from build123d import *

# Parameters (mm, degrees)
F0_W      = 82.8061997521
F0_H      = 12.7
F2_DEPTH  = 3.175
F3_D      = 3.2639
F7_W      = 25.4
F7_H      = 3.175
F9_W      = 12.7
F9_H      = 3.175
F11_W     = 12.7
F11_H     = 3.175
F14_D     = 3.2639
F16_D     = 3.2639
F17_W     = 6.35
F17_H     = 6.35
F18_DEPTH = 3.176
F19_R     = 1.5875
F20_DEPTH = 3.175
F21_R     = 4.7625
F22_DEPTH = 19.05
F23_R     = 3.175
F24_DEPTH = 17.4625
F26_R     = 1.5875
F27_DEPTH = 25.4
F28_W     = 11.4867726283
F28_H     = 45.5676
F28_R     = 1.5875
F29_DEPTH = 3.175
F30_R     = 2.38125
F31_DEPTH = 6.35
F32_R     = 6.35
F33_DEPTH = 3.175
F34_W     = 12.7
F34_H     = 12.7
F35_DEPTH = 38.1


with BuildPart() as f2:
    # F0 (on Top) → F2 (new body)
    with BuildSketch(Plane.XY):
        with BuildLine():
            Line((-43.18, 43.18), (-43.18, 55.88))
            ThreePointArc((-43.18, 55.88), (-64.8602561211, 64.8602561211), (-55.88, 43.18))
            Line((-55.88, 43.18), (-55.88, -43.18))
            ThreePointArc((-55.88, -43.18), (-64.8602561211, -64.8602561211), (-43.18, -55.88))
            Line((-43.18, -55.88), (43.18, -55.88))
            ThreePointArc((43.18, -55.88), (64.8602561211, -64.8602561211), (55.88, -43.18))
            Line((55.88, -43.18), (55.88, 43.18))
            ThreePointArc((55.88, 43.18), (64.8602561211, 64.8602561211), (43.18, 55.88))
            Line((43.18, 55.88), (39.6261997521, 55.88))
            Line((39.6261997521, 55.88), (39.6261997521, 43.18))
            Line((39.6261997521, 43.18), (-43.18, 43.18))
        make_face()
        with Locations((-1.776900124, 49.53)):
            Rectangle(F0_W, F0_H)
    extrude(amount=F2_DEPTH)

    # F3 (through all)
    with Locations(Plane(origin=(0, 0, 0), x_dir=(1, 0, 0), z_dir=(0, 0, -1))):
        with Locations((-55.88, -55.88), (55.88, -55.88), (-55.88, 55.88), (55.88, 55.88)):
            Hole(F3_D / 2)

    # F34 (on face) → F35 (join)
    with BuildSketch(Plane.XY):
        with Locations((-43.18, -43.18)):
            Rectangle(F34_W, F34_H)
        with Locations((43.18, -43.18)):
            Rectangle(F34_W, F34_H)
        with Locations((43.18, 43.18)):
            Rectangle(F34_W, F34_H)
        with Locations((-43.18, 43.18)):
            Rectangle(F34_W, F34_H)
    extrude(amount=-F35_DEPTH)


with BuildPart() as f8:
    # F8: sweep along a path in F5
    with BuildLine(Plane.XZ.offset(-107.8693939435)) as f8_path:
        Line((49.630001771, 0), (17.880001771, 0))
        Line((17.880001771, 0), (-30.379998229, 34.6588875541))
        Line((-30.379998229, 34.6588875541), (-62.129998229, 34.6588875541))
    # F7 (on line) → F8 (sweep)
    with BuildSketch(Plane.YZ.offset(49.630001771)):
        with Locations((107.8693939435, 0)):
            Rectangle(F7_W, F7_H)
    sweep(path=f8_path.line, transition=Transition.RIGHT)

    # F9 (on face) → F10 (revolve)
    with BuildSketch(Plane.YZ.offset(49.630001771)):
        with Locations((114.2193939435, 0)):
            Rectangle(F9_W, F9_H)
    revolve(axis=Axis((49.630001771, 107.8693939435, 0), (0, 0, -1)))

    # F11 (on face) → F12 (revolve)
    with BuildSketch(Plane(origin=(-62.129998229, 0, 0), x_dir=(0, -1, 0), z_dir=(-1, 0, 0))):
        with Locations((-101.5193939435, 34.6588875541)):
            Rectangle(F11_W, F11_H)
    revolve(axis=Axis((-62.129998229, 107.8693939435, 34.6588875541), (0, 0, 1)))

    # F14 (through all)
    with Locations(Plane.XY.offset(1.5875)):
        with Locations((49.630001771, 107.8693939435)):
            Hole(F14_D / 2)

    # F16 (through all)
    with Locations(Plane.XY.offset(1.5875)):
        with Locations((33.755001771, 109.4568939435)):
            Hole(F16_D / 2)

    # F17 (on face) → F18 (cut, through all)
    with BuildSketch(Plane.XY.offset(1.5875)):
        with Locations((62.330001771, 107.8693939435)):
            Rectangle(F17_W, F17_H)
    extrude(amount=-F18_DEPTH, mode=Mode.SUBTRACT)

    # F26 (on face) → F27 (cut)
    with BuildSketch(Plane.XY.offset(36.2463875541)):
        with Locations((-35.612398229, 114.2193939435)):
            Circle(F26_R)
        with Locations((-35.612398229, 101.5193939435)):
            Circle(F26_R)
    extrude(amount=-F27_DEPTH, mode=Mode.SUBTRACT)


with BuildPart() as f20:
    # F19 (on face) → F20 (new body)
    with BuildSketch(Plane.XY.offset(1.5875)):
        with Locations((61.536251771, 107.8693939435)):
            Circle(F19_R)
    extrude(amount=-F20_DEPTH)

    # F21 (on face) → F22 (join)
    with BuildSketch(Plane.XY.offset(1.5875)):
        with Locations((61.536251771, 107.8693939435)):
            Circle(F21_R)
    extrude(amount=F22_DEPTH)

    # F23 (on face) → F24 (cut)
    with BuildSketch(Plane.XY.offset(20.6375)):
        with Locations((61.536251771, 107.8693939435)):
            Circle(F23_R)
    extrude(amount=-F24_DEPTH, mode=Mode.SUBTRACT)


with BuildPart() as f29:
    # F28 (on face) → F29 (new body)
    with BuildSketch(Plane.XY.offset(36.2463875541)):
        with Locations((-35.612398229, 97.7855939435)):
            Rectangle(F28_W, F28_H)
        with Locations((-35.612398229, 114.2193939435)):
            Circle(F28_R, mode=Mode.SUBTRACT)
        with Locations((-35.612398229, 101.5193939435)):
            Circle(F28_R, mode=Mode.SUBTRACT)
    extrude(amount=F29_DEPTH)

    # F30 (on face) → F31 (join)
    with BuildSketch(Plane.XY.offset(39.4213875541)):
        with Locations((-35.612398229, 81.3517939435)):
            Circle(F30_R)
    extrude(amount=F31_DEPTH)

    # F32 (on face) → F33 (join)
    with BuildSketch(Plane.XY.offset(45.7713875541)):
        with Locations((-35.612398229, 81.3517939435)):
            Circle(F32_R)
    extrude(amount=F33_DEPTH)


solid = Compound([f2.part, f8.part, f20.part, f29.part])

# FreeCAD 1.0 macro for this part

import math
import FreeCAD as App
import Part
import Sketcher
Q = App.Units.Quantity


def add_polygon(sketch, points):
    """Adds a closed chain of lines whose ends are joined by coincident constraints."""
    first, n = sketch.GeometryCount, len(points)
    for a, b in zip(points, points[1:] + points[:1]):
        sketch.addGeometry(Part.LineSegment(App.Vector(*a, 0), App.Vector(*b, 0)), False)
    for i in range(n):
        sketch.addConstraint(Sketcher.Constraint("Coincident", first + i, 2, first + (i + 1) % n, 1))

doc = App.newDocument("Part")
body = doc.addObject("PartDesign::Body", "Body")

sketch1 = body.newObject("Sketcher::SketchObject", "Sketch")
sketch1.AttachmentSupport = (doc.getObject("XY_Plane"), [""])
sketch1.MapMode = "FlatFace"
sketch1.addGeometry([
    Part.ArcOfCircle(Part.Circle(App.Vector(-56, 56, 0), App.Vector(0, 0, 1), 13), math.radians(0), math.radians(270)),
    Part.LineSegment(App.Vector(-56, 43, 0), App.Vector(-56, -43, 0)),
    Part.ArcOfCircle(Part.Circle(App.Vector(-56, -56, 0), App.Vector(0, 0, 1), 13), math.radians(90), math.radians(360)),
    Part.LineSegment(App.Vector(-43, -56, 0), App.Vector(43, -56, 0)),
    Part.ArcOfCircle(Part.Circle(App.Vector(56, -56, 0), App.Vector(0, 0, 1), 13), math.radians(180), math.radians(450)),
    Part.LineSegment(App.Vector(56, -43, 0), App.Vector(56, 43, 0)),
    Part.ArcOfCircle(Part.Circle(App.Vector(56, 56, 0), App.Vector(0, 0, 1), 13), math.radians(-90), math.radians(180)),
    Part.LineSegment(App.Vector(43, 56, 0), App.Vector(-43, 56, 0)),
], False)
sketch1.addConstraint([
    Sketcher.Constraint("Coincident", 0, 2, 1, 1),
    Sketcher.Constraint("Coincident", 1, 2, 2, 1),
    Sketcher.Constraint("Coincident", 2, 2, 3, 1),
    Sketcher.Constraint("Coincident", 3, 2, 4, 1),
    Sketcher.Constraint("Coincident", 4, 2, 5, 1),
    Sketcher.Constraint("Coincident", 5, 2, 6, 1),
    Sketcher.Constraint("Coincident", 6, 2, 7, 1),
    Sketcher.Constraint("Coincident", 7, 2, 0, 1),
    Sketcher.Constraint("Vertical", 1),
    Sketcher.Constraint("Horizontal", 3),
    Sketcher.Constraint("Vertical", 5),
    Sketcher.Constraint("Horizontal", 7),
    Sketcher.Constraint("Equal", 0, 2),
    Sketcher.Constraint("Equal", 2, 4),
    Sketcher.Constraint("Equal", 4, 6),
    Sketcher.Constraint("Symmetric", 0, 3, 4, 3, -1, 1),
    Sketcher.Constraint("Symmetric", 2, 3, 6, 3, -1, 1),
    Sketcher.Constraint("Symmetric", 2, 3, 4, 3, -2),
    Sketcher.Constraint("Horizontal", 4, 3, 2, 2),
    Sketcher.Constraint("Horizontal", 0, 3, 6, 2),
    Sketcher.Constraint("Vertical", 2, 3, 0, 2),
    Sketcher.Constraint("Vertical", 6, 3, 4, 2),
    Sketcher.Constraint("Equal", 7, 1),
    Sketcher.Constraint("Radius", 0, Q("0.5 in")),
    Sketcher.Constraint("DistanceX", 3, 1, 3, 2, Q("3.4 in")),
])
pad1 = body.newObject("PartDesign::Pad", "Pad")
pad1.Profile = sketch1
pad1.Length = Q("0.125 in")

sketch2 = body.newObject("Sketcher::SketchObject", "Sketch001")
sketch2.AttachmentSupport = (doc.getObject("XY_Plane"), [""])
sketch2.MapMode = "FlatFace"
sketch2.addGeometry([
    Part.Circle(App.Vector(-55.9, 55.9, 0), App.Vector(0, 0, 1), 1.6),
    Part.Circle(App.Vector(55.9, 55.9, 0), App.Vector(0, 0, 1), 1.6),
    Part.Circle(App.Vector(-55.9, -55.9, 0), App.Vector(0, 0, 1), 1.6),
    Part.Circle(App.Vector(55.9, -55.9, 0), App.Vector(0, 0, 1), 1.6),
], False)
sketch2.addConstraint([
    Sketcher.Constraint("Equal", 0, 1),
    Sketcher.Constraint("Equal", 1, 2),
    Sketcher.Constraint("Equal", 2, 3),
    Sketcher.Constraint("Symmetric", 1, 3, 2, 3, -1, 1),
    Sketcher.Constraint("Symmetric", 0, 3, 3, 3, -1, 1),
    Sketcher.Constraint("Symmetric", 0, 3, 1, 3, -2),
    Sketcher.Constraint("Diameter", 0, Q("0.1285 in")),
    Sketcher.Constraint("DistanceX", 0, 3, -1, 1, Q("2.2 in")),
    Sketcher.Constraint("DistanceY", -1, 1, 0, 3, Q("2.2 in")),
])
doc.recompute()
hole = body.newObject("PartDesign::Hole", "Hole")
hole.Profile = sketch2
hole.ThreadType = "None"
hole.Diameter = Q("0.1285 in")
hole.DepthType = "ThroughAll"
hole.Reversed = True

sketch3 = body.newObject("Sketcher::SketchObject", "Sketch002")
sketch3.AttachmentSupport = (doc.getObject("XY_Plane"), [""])
sketch3.MapMode = "FlatFace"
add_polygon(sketch3, [(-50, -37), (-50, -50), (-37, -50), (-37, -37)])
add_polygon(sketch3, [(37, -37), (37, -50), (50, -50), (50, -37)])
add_polygon(sketch3, [(37, 50), (37, 37), (50, 37), (50, 50)])
add_polygon(sketch3, [(-50, 50), (-50, 37), (-37, 37), (-37, 50)])
sketch3.addConstraint([
    Sketcher.Constraint("Vertical", 0),
    Sketcher.Constraint("Horizontal", 1),
    Sketcher.Constraint("Vertical", 2),
    Sketcher.Constraint("Horizontal", 3),
    Sketcher.Constraint("Vertical", 4),
    Sketcher.Constraint("Horizontal", 5),
    Sketcher.Constraint("Vertical", 6),
    Sketcher.Constraint("Horizontal", 7),
    Sketcher.Constraint("Vertical", 8),
    Sketcher.Constraint("Horizontal", 9),
    Sketcher.Constraint("Vertical", 10),
    Sketcher.Constraint("Horizontal", 11),
    Sketcher.Constraint("Vertical", 12),
    Sketcher.Constraint("Horizontal", 13),
    Sketcher.Constraint("Vertical", 14),
    Sketcher.Constraint("Horizontal", 15),
    Sketcher.Constraint("Symmetric", 2, 2, 8, 2, -1, 1),
    Sketcher.Constraint("Symmetric", 0, 2, 10, 2, -1, 1),
    Sketcher.Constraint("Symmetric", 6, 2, 12, 2, -1, 1),
    Sketcher.Constraint("Symmetric", 4, 2, 14, 2, -1, 1),
    Sketcher.Constraint("Symmetric", 1, 2, 4, 2, -2),
    Sketcher.Constraint("Symmetric", 3, 2, 6, 2, -2),
    Sketcher.Constraint("Equal", 15, 0),
    Sketcher.Constraint("DistanceX", 1, 1, 1, 2, Q("0.5 in")),
    Sketcher.Constraint("DistanceX", 1, 2, 4, 2, Q("2.9 in")),
    Sketcher.Constraint("DistanceY", 7, 2, 8, 2, Q("2.9 in")),
])
pad2 = body.newObject("PartDesign::Pad", "Pad001")
pad2.Profile = sketch3
pad2.Length = Q("1.5 in")
pad2.Reversed = True
body2 = doc.addObject("PartDesign::Body", "Body001")

sketch4 = body2.newObject("Sketcher::SketchObject", "Sketch003")
sketch4.AttachmentSupport = (doc.getObject("YZ_Plane001"), [""])
sketch4.MapMode = "FlatFace"
sketch4.AttachmentOffset = App.Placement(App.Vector(0, 0, 49.630002), App.Rotation())
add_polygon(sketch4, [(95.2, 1.6), (95.2, -1.6), (120.6, -1.6), (120.6, 1.6)])
sketch4.addConstraint([
    Sketcher.Constraint("Vertical", 0),
    Sketcher.Constraint("Horizontal", 1),
    Sketcher.Constraint("Vertical", 2),
    Sketcher.Constraint("Horizontal", 3),
    Sketcher.Constraint("DistanceX", 1, 1, 1, 2, Q("1 in")),
    Sketcher.Constraint("DistanceY", 0, 2, 0, 1, Q("0.125 in")),
    Sketcher.Constraint("DistanceY", 0, 2, -1, 1, Q("0.0625 in")),
    Sketcher.Constraint("DistanceX", -1, 1, 0, 2, 95.169394),
])

sketch5 = body2.newObject("Sketcher::SketchObject", "Sketch004")
sketch5.AttachmentSupport = (doc.getObject("XZ_Plane001"), [""])
sketch5.MapMode = "FlatFace"
sketch5.AttachmentOffset = App.Placement(App.Vector(0, 0, -107.869394), App.Rotation())
sketch5.addGeometry([
    Part.LineSegment(App.Vector(50, 0, 0), App.Vector(18, 0, 0)),
    Part.LineSegment(App.Vector(18, 0, 0), App.Vector(-30, 35, 0)),
    Part.LineSegment(App.Vector(-30, 35, 0), App.Vector(-62, 35, 0)),
], False)
sketch5.addConstraint([
    Sketcher.Constraint("Coincident", 0, 2, 1, 1),
    Sketcher.Constraint("Coincident", 1, 2, 2, 1),
    Sketcher.Constraint("Horizontal", 0),
    Sketcher.Constraint("Horizontal", 2),
    Sketcher.Constraint("PointOnObject", 0, 1, -1),
    Sketcher.Constraint("Equal", 0, 2),
    Sketcher.Constraint("DistanceX", 0, 2, 0, 1, Q("1.25 in")),
    Sketcher.Constraint("DistanceX", 1, 2, 0, 2, Q("1.9 in")),
    Sketcher.Constraint("DistanceX", -1, 1, 0, 1, 49.630002),
    Sketcher.Constraint("Distance", 1, 59.416042),
])
doc.recompute()

additivepipe = body2.newObject("PartDesign::AdditivePipe", "AdditivePipe")
additivepipe.Profile = sketch4
additivepipe.Spine = (sketch5, ["Edge1", "Edge2", "Edge3"])
additivepipe.Transition = "Right corner"

sketch6 = body2.newObject("Sketcher::SketchObject", "Sketch005")
sketch6.AttachmentSupport = (doc.getObject("YZ_Plane001"), [""])
sketch6.MapMode = "FlatFace"
sketch6.AttachmentOffset = App.Placement(App.Vector(0, 0, 49.630002), App.Rotation())
add_polygon(sketch6, [(107.9, 1.6), (107.9, -1.6), (120.6, -1.6), (120.6, 1.6)])
sketch6.addGeometry(Part.LineSegment(App.Vector(107.9, 1.6, 0), App.Vector(107.9, -1.6, 0)), True)
sketch6.addConstraint([
    Sketcher.Constraint("Vertical", 0),
    Sketcher.Constraint("Horizontal", 1),
    Sketcher.Constraint("Vertical", 2),
    Sketcher.Constraint("Horizontal", 3),
    Sketcher.Constraint("Vertical", 4),
    Sketcher.Constraint("Coincident", 4, 1, 3, 2),
    Sketcher.Constraint("Horizontal", 1, 2, 4, 2),
    Sketcher.Constraint("DistanceX", 1, 1, 1, 2, Q("0.5 in")),
    Sketcher.Constraint("DistanceY", 0, 2, 0, 1, Q("0.125 in")),
    Sketcher.Constraint("DistanceY", 0, 2, -1, 1, Q("0.0625 in")),
    Sketcher.Constraint("DistanceX", -1, 1, 0, 2, 107.869394),
])
revolution = body2.newObject("PartDesign::Revolution", "Revolution")
revolution.Profile = sketch6
revolution.ReferenceAxis = (sketch6, ["Axis0"])
revolution.Angle = 360

sketch7 = body2.newObject("Sketcher::SketchObject", "Sketch006")
sketch7.AttachmentSupport = (doc.getObject("YZ_Plane001"), [""])
sketch7.MapMode = "FlatFace"
sketch7.AttachmentOffset = App.Placement(App.Vector(0, 0, -62.129998), App.Rotation())
add_polygon(sketch7, [(107.9, 36.2), (107.9, 33.1), (95.2, 33.1), (95.2, 36.2)])
sketch7.addGeometry(Part.LineSegment(App.Vector(107.9, 33.1, 0), App.Vector(107.9, 36.2, 0)), True)
sketch7.addConstraint([
    Sketcher.Constraint("Vertical", 0),
    Sketcher.Constraint("Horizontal", 1),
    Sketcher.Constraint("Vertical", 2),
    Sketcher.Constraint("Horizontal", 3),
    Sketcher.Constraint("Vertical", 4),
    Sketcher.Constraint("Coincident", 4, 1, 0, 2),
    Sketcher.Constraint("Horizontal", 2, 2, 4, 2),
    Sketcher.Constraint("DistanceX", 1, 2, 1, 1, Q("0.5 in")),
    Sketcher.Constraint("DistanceY", 0, 2, 0, 1, Q("0.125 in")),
    Sketcher.Constraint("DistanceX", -1, 1, 0, 2, 107.869394),
    Sketcher.Constraint("DistanceY", -1, 1, 0, 2, 33.071388),
])
revolution2 = body2.newObject("PartDesign::Revolution", "Revolution001")
revolution2.Profile = sketch7
revolution2.ReferenceAxis = (sketch7, ["Axis0"])
revolution2.Angle = 360

sketch8 = body2.newObject("Sketcher::SketchObject", "Sketch007")
sketch8.AttachmentSupport = (doc.getObject("XY_Plane001"), [""])
sketch8.MapMode = "FlatFace"
sketch8.AttachmentOffset = App.Placement(App.Vector(0, 0, 0.0625 * 25.4), App.Rotation())
sketch8.addGeometry(Part.Circle(App.Vector(49.6, 107.9, 0), App.Vector(0, 0, 1), 1.6), False)
sketch8.addConstraint([
    Sketcher.Constraint("Diameter", 0, Q("0.1285 in")),
    Sketcher.Constraint("DistanceX", -1, 1, 0, 3, 49.630002),
    Sketcher.Constraint("DistanceY", -1, 1, 0, 3, 107.869394),
])
doc.recompute()
hole2 = body2.newObject("PartDesign::Hole", "Hole001")
hole2.Profile = sketch8
hole2.ThreadType = "None"
hole2.Diameter = Q("0.1285 in")
hole2.DepthType = "ThroughAll"

sketch9 = body2.newObject("Sketcher::SketchObject", "Sketch008")
sketch9.AttachmentSupport = (doc.getObject("XY_Plane001"), [""])
sketch9.MapMode = "FlatFace"
sketch9.AttachmentOffset = App.Placement(App.Vector(0, 0, 0.0625 * 25.4), App.Rotation())
sketch9.addGeometry(Part.Circle(App.Vector(33.8, 109.5, 0), App.Vector(0, 0, 1), 1.6), False)
sketch9.addConstraint([
    Sketcher.Constraint("Diameter", 0, Q("0.1285 in")),
    Sketcher.Constraint("DistanceX", -1, 1, 0, 3, 33.755002),
    Sketcher.Constraint("DistanceY", -1, 1, 0, 3, 109.456894),
])
doc.recompute()
hole3 = body2.newObject("PartDesign::Hole", "Hole002")
hole3.Profile = sketch9
hole3.ThreadType = "None"
hole3.Diameter = Q("0.1285 in")
hole3.DepthType = "ThroughAll"

sketch10 = body2.newObject("Sketcher::SketchObject", "Sketch009")
sketch10.AttachmentSupport = (doc.getObject("XY_Plane001"), [""])
sketch10.MapMode = "FlatFace"
sketch10.AttachmentOffset = App.Placement(App.Vector(0, 0, 0.0625 * 25.4), App.Rotation())
add_polygon(sketch10, [(59, 111), (59, 105), (66, 105), (66, 111)])
sketch10.addConstraint([
    Sketcher.Constraint("Vertical", 0),
    Sketcher.Constraint("Horizontal", 1),
    Sketcher.Constraint("Vertical", 2),
    Sketcher.Constraint("Horizontal", 3),
    Sketcher.Constraint("Equal", 3, 0),
    Sketcher.Constraint("DistanceX", 1, 1, 1, 2, Q("0.25 in")),
    Sketcher.Constraint("DistanceX", -1, 1, 0, 2, 59.155002),
    Sketcher.Constraint("DistanceY", -1, 1, 0, 2, 104.694394),
])
pocket1 = body2.newObject("PartDesign::Pocket", "Pocket")
pocket1.Profile = sketch10
pocket1.Type = "ThroughAll"

sketch11 = body2.newObject("Sketcher::SketchObject", "Sketch010")
sketch11.AttachmentSupport = (doc.getObject("XY_Plane001"), [""])
sketch11.MapMode = "FlatFace"
sketch11.AttachmentOffset = App.Placement(App.Vector(0, 0, 36.246388), App.Rotation())
sketch11.addGeometry([
    Part.Circle(App.Vector(-35.6, 114.2, 0), App.Vector(0, 0, 1), 1.6),
    Part.Circle(App.Vector(-35.6, 101.5, 0), App.Vector(0, 0, 1), 1.6),
], False)
sketch11.addConstraint([
    Sketcher.Constraint("Equal", 0, 1),
    Sketcher.Constraint("Vertical", 0, 3, 1, 3),
    Sketcher.Constraint("Diameter", 0, Q("0.125 in")),
    Sketcher.Constraint("DistanceY", 1, 3, 0, 3, Q("0.5 in")),
    Sketcher.Constraint("DistanceX", 0, 3, -1, 1, 35.612398),
    Sketcher.Constraint("DistanceY", -1, 1, 0, 3, 114.219394),
])
pocket2 = body2.newObject("PartDesign::Pocket", "Pocket001")
pocket2.Profile = sketch11
pocket2.Length = Q("1 in")
body3 = doc.addObject("PartDesign::Body", "Body002")

sketch12 = body3.newObject("Sketcher::SketchObject", "Sketch011")
sketch12.AttachmentSupport = (doc.getObject("XY_Plane002"), [""])
sketch12.MapMode = "FlatFace"
sketch12.AttachmentOffset = App.Placement(App.Vector(0, 0, 0.0625 * 25.4), App.Rotation())
sketch12.addGeometry(Part.Circle(App.Vector(61.5, 107.9, 0), App.Vector(0, 0, 1), 1.6), False)
sketch12.addConstraint([
    Sketcher.Constraint("Diameter", 0, Q("0.125 in")),
    Sketcher.Constraint("DistanceX", -1, 1, 0, 3, 61.536252),
    Sketcher.Constraint("DistanceY", -1, 1, 0, 3, 107.869394),
])
pad3 = body3.newObject("PartDesign::Pad", "Pad002")
pad3.Profile = sketch12
pad3.Length = Q("0.125 in")
pad3.Reversed = True

sketch13 = body3.newObject("Sketcher::SketchObject", "Sketch012")
sketch13.AttachmentSupport = (doc.getObject("XY_Plane002"), [""])
sketch13.MapMode = "FlatFace"
sketch13.AttachmentOffset = App.Placement(App.Vector(0, 0, 0.0625 * 25.4), App.Rotation())
sketch13.addGeometry(Part.Circle(App.Vector(61.5, 107.9, 0), App.Vector(0, 0, 1), 4.8), False)
sketch13.addConstraint([
    Sketcher.Constraint("Diameter", 0, Q("0.375 in")),
    Sketcher.Constraint("DistanceX", -1, 1, 0, 3, 61.536252),
    Sketcher.Constraint("DistanceY", -1, 1, 0, 3, 107.869394),
])
pad4 = body3.newObject("PartDesign::Pad", "Pad003")
pad4.Profile = sketch13
pad4.Length = Q("0.75 in")

sketch14 = body3.newObject("Sketcher::SketchObject", "Sketch013")
sketch14.AttachmentSupport = (doc.getObject("XY_Plane002"), [""])
sketch14.MapMode = "FlatFace"
sketch14.AttachmentOffset = App.Placement(App.Vector(0, 0, 0.8125 * 25.4), App.Rotation())
sketch14.addGeometry(Part.Circle(App.Vector(61.5, 107.9, 0), App.Vector(0, 0, 1), 3.2), False)
sketch14.addConstraint([
    Sketcher.Constraint("Diameter", 0, Q("0.25 in")),
    Sketcher.Constraint("DistanceX", -1, 1, 0, 3, 61.536252),
    Sketcher.Constraint("DistanceY", -1, 1, 0, 3, 107.869394),
])
pocket3 = body3.newObject("PartDesign::Pocket", "Pocket002")
pocket3.Profile = sketch14
pocket3.Length = Q("0.6875 in")
body4 = doc.addObject("PartDesign::Body", "Body003")

sketch15 = body4.newObject("Sketcher::SketchObject", "Sketch014")
sketch15.AttachmentSupport = (doc.getObject("XY_Plane003"), [""])
sketch15.MapMode = "FlatFace"
sketch15.AttachmentOffset = App.Placement(App.Vector(0, 0, 36.246388), App.Rotation())
add_polygon(sketch15, [(-41.4, 120.6), (-41.4, 75), (-29.9, 75), (-29.9, 120.6)])
sketch15.addGeometry(Part.Circle(App.Vector(-35.6, 101.5, 0), App.Vector(0, 0, 1), 1.6), False)
sketch15.addGeometry(Part.Circle(App.Vector(-35.6, 114.2, 0), App.Vector(0, 0, 1), 1.6), False)
sketch15.addConstraint([
    Sketcher.Constraint("Vertical", 0),
    Sketcher.Constraint("Horizontal", 1),
    Sketcher.Constraint("Vertical", 2),
    Sketcher.Constraint("Horizontal", 3),
    Sketcher.Constraint("Equal", 4, 5),
    Sketcher.Constraint("Vertical", 4, 3, 5, 3),
    Sketcher.Constraint("Diameter", 4, Q("0.125 in")),
    Sketcher.Constraint("DistanceY", 4, 3, 5, 3, Q("0.5 in")),
    Sketcher.Constraint("DistanceY", 0, 2, 0, 1, Q("1.794 in")),
    Sketcher.Constraint("DistanceY", 5, 3, 2, 2, Q("0.25 in")),
    Sketcher.Constraint("DistanceX", 4, 3, -1, 1, 35.612398),
    Sketcher.Constraint("DistanceX", 1, 1, 1, 2, 11.486773),
    Sketcher.Constraint("DistanceX", 1, 2, -1, 1, 29.869012),
    Sketcher.Constraint("DistanceY", -1, 1, 4, 3, 101.519394),
])
pad5 = body4.newObject("PartDesign::Pad", "Pad004")
pad5.Profile = sketch15
pad5.Length = Q("0.125 in")

sketch16 = body4.newObject("Sketcher::SketchObject", "Sketch015")
sketch16.AttachmentSupport = (doc.getObject("XY_Plane003"), [""])
sketch16.MapMode = "FlatFace"
sketch16.AttachmentOffset = App.Placement(App.Vector(0, 0, 39.421388), App.Rotation())
sketch16.addGeometry(Part.Circle(App.Vector(-35.6, 81.4, 0), App.Vector(0, 0, 1), 2.4), False)
sketch16.addConstraint([
    Sketcher.Constraint("Diameter", 0, Q("0.1875 in")),
    Sketcher.Constraint("DistanceX", 0, 3, -1, 1, 35.612398),
    Sketcher.Constraint("DistanceY", -1, 1, 0, 3, 81.351794),
])
pad6 = body4.newObject("PartDesign::Pad", "Pad005")
pad6.Profile = sketch16
pad6.Length = Q("0.25 in")

sketch17 = body4.newObject("Sketcher::SketchObject", "Sketch016")
sketch17.AttachmentSupport = (doc.getObject("XY_Plane003"), [""])
sketch17.MapMode = "FlatFace"
sketch17.AttachmentOffset = App.Placement(App.Vector(0, 0, 45.771388), App.Rotation())
sketch17.addGeometry(Part.Circle(App.Vector(-36, 81, 0), App.Vector(0, 0, 1), 6), False)
sketch17.addConstraint([
    Sketcher.Constraint("Diameter", 0, Q("0.5 in")),
    Sketcher.Constraint("DistanceX", 0, 3, -1, 1, 35.612398),
    Sketcher.Constraint("DistanceY", -1, 1, 0, 3, 81.351794),
])
pad7 = body4.newObject("PartDesign::Pad", "Pad006")
pad7.Profile = sketch17
pad7.Length = Q("0.125 in")

doc.recompute()
